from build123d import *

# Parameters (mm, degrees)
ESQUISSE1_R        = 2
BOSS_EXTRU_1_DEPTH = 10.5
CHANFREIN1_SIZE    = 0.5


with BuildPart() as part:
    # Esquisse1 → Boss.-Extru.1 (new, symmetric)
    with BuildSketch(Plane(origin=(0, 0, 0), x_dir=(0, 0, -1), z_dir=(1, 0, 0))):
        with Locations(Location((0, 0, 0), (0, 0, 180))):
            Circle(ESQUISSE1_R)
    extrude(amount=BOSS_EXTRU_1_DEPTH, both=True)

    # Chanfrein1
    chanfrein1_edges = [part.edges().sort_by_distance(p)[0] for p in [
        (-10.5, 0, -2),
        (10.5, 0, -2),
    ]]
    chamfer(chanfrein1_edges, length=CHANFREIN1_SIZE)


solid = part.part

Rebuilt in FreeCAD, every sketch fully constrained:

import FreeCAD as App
import Part
import Sketcher
from FreeCAD import Vector


def edges_at(feature, points):
    """Names of the edges that pass closest to the given points."""
    edges = feature.Shape.Edges
    near = lambda p: min(range(len(edges)), key=lambda i: edges[i].distToShape(Part.Vertex(*p))[0])
    return sorted({f"Edge{near(p) + 1}" for p in points})

doc = App.newDocument("Part")
body = doc.addObject("PartDesign::Body", "Body")

# Sketch on YZ plane
sketch1 = body.newObject("Sketcher::SketchObject", "Sketch")
sketch1.AttachmentSupport = (doc.getObject("YZ_Plane"), [""])
sketch1.MapMode = "FlatFace"
sketch1.addGeometry(Part.Circle(Vector(0, 0, 0), Vector(0, 0, 1), 2), False)
sketch1.addConstraint([
    Sketcher.Constraint("Coincident", 0, 3, -1, 1),
    Sketcher.Constraint("Diameter", 0, 4.0),
])
pad1 = body.newObject("PartDesign::Pad", "Pad")
pad1.Profile = sketch1
pad1.Length = 21
pad1.Midplane = True
doc.recompute()

chamfer = body.newObject("PartDesign::Chamfer", "Chamfer")
chamfer.Base = (pad1, edges_at(pad1, [(-10.5, 0, -2), (10.5, 0, -2)]))
chamfer.Size = 0.5

doc.recompute()
